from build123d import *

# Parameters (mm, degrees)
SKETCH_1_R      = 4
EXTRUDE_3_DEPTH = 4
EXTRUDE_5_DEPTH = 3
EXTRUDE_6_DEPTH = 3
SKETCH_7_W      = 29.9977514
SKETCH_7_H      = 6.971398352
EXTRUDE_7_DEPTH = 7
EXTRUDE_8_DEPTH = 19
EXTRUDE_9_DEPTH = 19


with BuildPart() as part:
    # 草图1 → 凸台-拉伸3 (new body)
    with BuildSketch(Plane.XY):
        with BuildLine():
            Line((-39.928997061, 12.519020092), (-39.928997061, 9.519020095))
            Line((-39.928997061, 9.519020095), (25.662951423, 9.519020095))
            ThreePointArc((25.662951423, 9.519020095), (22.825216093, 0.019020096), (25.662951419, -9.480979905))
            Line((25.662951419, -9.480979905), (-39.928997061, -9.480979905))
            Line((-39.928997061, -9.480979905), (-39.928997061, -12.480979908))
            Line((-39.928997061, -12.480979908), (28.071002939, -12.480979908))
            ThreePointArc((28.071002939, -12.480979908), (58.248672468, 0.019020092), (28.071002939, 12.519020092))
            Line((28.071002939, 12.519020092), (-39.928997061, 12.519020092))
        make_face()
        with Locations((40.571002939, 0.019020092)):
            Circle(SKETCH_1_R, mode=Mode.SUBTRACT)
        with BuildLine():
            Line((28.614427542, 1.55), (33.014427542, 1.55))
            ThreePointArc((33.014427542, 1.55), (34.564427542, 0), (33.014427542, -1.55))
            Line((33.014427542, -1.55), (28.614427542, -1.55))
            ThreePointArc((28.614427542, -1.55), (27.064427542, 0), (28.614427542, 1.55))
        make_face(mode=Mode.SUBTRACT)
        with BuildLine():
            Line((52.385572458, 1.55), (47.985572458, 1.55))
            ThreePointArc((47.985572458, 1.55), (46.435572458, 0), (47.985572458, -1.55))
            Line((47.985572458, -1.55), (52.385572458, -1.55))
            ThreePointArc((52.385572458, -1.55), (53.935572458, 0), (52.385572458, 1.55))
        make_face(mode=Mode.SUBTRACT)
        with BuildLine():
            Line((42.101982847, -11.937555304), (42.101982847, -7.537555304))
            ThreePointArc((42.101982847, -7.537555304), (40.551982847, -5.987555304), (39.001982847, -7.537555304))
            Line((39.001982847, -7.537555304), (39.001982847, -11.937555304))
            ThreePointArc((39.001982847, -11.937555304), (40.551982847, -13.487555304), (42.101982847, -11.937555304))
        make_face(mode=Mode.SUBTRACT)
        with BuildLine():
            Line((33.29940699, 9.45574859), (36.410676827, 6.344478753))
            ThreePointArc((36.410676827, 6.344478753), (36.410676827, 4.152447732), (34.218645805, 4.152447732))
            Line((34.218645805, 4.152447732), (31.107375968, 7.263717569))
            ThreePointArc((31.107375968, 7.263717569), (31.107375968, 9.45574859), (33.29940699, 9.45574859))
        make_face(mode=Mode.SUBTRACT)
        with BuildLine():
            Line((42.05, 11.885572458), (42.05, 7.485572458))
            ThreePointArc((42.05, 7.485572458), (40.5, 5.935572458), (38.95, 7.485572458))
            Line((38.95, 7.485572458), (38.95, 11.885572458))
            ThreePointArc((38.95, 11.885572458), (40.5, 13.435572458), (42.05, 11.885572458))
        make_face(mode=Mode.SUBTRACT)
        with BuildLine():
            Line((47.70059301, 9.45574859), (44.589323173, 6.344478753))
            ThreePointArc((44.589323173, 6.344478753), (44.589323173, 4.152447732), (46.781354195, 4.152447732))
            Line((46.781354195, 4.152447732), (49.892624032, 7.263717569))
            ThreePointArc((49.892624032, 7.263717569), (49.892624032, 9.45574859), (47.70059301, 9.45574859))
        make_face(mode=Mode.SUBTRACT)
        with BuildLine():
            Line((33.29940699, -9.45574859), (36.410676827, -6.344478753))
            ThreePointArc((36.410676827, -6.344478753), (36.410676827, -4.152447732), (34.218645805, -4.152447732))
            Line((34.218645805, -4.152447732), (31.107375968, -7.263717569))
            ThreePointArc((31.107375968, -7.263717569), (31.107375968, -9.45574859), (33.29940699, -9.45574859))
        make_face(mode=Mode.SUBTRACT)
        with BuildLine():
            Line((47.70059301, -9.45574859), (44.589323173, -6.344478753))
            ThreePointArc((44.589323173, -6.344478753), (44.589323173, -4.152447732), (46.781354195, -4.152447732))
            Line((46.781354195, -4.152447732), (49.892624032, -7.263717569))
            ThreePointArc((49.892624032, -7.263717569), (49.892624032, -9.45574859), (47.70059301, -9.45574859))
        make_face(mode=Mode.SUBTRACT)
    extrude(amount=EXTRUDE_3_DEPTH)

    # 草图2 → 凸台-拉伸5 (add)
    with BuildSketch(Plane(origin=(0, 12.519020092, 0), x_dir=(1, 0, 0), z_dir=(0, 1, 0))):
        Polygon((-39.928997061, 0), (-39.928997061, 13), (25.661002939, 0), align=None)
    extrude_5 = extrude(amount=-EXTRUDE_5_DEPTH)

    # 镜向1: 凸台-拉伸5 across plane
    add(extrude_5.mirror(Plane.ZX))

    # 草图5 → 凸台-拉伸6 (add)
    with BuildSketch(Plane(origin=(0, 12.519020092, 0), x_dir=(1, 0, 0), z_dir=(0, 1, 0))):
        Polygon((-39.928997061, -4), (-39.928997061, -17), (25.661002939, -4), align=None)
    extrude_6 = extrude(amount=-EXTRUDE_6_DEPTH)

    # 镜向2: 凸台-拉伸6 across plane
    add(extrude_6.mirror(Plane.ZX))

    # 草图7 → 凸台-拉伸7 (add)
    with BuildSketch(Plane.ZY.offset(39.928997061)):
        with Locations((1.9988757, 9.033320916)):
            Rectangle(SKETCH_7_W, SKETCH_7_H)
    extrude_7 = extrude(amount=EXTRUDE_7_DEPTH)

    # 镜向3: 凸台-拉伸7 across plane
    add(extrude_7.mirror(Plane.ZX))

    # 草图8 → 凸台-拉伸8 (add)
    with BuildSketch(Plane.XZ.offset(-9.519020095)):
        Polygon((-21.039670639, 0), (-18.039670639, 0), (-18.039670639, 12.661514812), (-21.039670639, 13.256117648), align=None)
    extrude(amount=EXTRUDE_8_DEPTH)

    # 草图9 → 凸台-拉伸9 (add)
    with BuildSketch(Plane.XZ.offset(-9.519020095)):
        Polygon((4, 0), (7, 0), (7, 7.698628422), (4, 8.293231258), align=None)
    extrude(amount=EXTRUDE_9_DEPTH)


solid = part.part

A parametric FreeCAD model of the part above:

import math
import FreeCAD as App
import Part
import Sketcher


def add_polygon(sketch, points):
    """Adds a closed chain of lines whose ends are joined by coincident constraints."""
    first, n = sketch.GeometryCount, len(points)
    for a, b in zip(points, points[1:] + points[:1]):
        sketch.addGeometry(Part.LineSegment(App.Vector(*a, 0), App.Vector(*b, 0)), False)
    for i in range(n):
        sketch.addConstraint(Sketcher.Constraint("Coincident", first + i, 2, first + (i + 1) % n, 1))

doc = App.newDocument("Part")
body = doc.addObject("PartDesign::Body", "Body")

# Sketch on XY plane
sketch1 = body.newObject("Sketcher::SketchObject", "Sketch")
sketch1.AttachmentSupport = (doc.getObject("XY_Plane"), [""])
sketch1.MapMode = "FlatFace"
sketch1.addGeometry([
    Part.LineSegment(App.Vector(-39.9, 12.5, 0), App.Vector(-39.9, 9.5, 0)),  # 0
    Part.LineSegment(App.Vector(-39.9, 9.5, 0), App.Vector(25.7, 9.5, 0)),  # 1
    Part.ArcOfCircle(Part.Circle(App.Vector(40.1, 0, 0), App.Vector(0, 0, 1), 17.3), math.radians(147), math.radians(213)),  # 2
    Part.LineSegment(App.Vector(25.7, -9.5, 0), App.Vector(-39.9, -9.5, 0)),  # 3
    Part.LineSegment(App.Vector(-39.9, -9.5, 0), App.Vector(-39.9, -12.5, 0)),  # 4
    Part.LineSegment(App.Vector(-39.9, -12.5, 0), App.Vector(28.1, -12.5, 0)),  # 5
    Part.ArcOfCircle(Part.Circle(App.Vector(40.6, 0, 0), App.Vector(0, 0, 1), 17.7), math.radians(-135), math.radians(135)),  # 6
    Part.LineSegment(App.Vector(28.1, 12.5, 0), App.Vector(-39.9, 12.5, 0)),  # 7
    Part.LineSegment(App.Vector(36.4, -6.3, 0), App.Vector(33.3, -9.5, 0)),  # 8
    Part.ArcOfCircle(Part.Circle(App.Vector(32.2, -8.4, 0), App.Vector(0, 0, 1), 1.6), math.radians(135), math.radians(315)),  # 9
    Part.LineSegment(App.Vector(31.1, -7.3, 0), App.Vector(34.2, -4.2, 0)),  # 10
    Part.ArcOfCircle(Part.Circle(App.Vector(35.3, -5.2, 0), App.Vector(0, 0, 1), 1.6), math.radians(-45), math.radians(135)),  # 11
    Part.LineSegment(App.Vector(42.1, -7.5, 0), App.Vector(42.1, -11.9, 0)),  # 12
    Part.ArcOfCircle(Part.Circle(App.Vector(40.6, -11.9, 0), App.Vector(0, 0, 1), 1.6), math.radians(180), math.radians(360)),  # 13
    Part.LineSegment(App.Vector(39, -11.9, 0), App.Vector(39, -7.5, 0)),  # 14
    Part.ArcOfCircle(Part.Circle(App.Vector(40.6, -7.5, 0), App.Vector(0, 0, 1), 1.6), math.radians(0), math.radians(180)),  # 15
    Part.ArcOfCircle(Part.Circle(App.Vector(48.8, -8.4, 0), App.Vector(0, 0, 1), 1.6), math.radians(-135), math.radians(45)),  # 16
    Part.LineSegment(App.Vector(47.7, -9.5, 0), App.Vector(44.6, -6.3, 0)),  # 17
    Part.ArcOfCircle(Part.Circle(App.Vector(45.7, -5.2, 0), App.Vector(0, 0, 1), 1.6), math.radians(45), math.radians(225)),  # 18
    Part.LineSegment(App.Vector(46.8, -4.2, 0), App.Vector(49.9, -7.3, 0)),  # 19
    Part.ArcOfCircle(Part.Circle(App.Vector(28.6, 0, 0), App.Vector(0, 0, 1), 1.6), math.radians(90), math.radians(270)),  # 20
    Part.LineSegment(App.Vector(28.6, 1.6, 0), App.Vector(33, 1.6, 0)),  # 21
    Part.ArcOfCircle(Part.Circle(App.Vector(33, 0, 0), App.Vector(0, 0, 1), 1.6), math.radians(-90), math.radians(90)),  # 22
    Part.LineSegment(App.Vector(33, -1.6, 0), App.Vector(28.6, -1.6, 0)),  # 23
    Part.ArcOfCircle(Part.Circle(App.Vector(32.2, 8.4, 0), App.Vector(0, 0, 1), 1.6), math.radians(45), math.radians(225)),  # 24
    Part.LineSegment(App.Vector(33.3, 9.5, 0), App.Vector(36.4, 6.3, 0)),  # 25
    Part.ArcOfCircle(Part.Circle(App.Vector(35.3, 5.2, 0), App.Vector(0, 0, 1), 1.6), math.radians(-135), math.radians(45)),  # 26
    Part.LineSegment(App.Vector(34.2, 4.2, 0), App.Vector(31.1, 7.3, 0)),  # 27
    Part.ArcOfCircle(Part.Circle(App.Vector(40.5, 11.9, 0), App.Vector(0, 0, 1), 1.6), math.radians(0), math.radians(180)),  # 28
    Part.LineSegment(App.Vector(42, 11.9, 0), App.Vector(42, 7.5, 0)),  # 29
    Part.ArcOfCircle(Part.Circle(App.Vector(40.5, 7.5, 0), App.Vector(0, 0, 1), 1.6), math.radians(180), math.radians(360)),  # 30
    Part.LineSegment(App.Vector(39, 7.5, 0), App.Vector(39, 11.9, 0)),  # 31
    Part.Circle(App.Vector(40.6, 0, 0), App.Vector(0, 0, 1), 4),  # 32
    Part.LineSegment(App.Vector(48, 1.6, 0), App.Vector(52.4, 1.6, 0)),  # 33
    Part.ArcOfCircle(Part.Circle(App.Vector(52.4, 0, 0), App.Vector(0, 0, 1), 1.6), math.radians(-90), math.radians(90)),  # 34
    Part.LineSegment(App.Vector(52.4, -1.6, 0), App.Vector(48, -1.6, 0)),  # 35
    Part.ArcOfCircle(Part.Circle(App.Vector(48, 0, 0), App.Vector(0, 0, 1), 1.6), math.radians(90), math.radians(270)),  # 36
    Part.LineSegment(App.Vector(44.6, 6.3, 0), App.Vector(47.7, 9.5, 0)),  # 37
    Part.ArcOfCircle(Part.Circle(App.Vector(48.8, 8.4, 0), App.Vector(0, 0, 1), 1.6), math.radians(-45), math.radians(135)),  # 38
    Part.LineSegment(App.Vector(49.9, 7.3, 0), App.Vector(46.8, 4.2, 0)),  # 39
    Part.ArcOfCircle(Part.Circle(App.Vector(45.7, 5.2, 0), App.Vector(0, 0, 1), 1.6), math.radians(135), math.radians(315)),  # 40
], False)
sketch1.addConstraint([
    Sketcher.Constraint("Coincident", 0, 2, 1, 1),
    Sketcher.Constraint("Coincident", 1, 2, 2, 1),
    Sketcher.Constraint("Coincident", 2, 2, 3, 1),
    Sketcher.Constraint("Coincident", 3, 2, 4, 1),
    Sketcher.Constraint("Coincident", 4, 2, 5, 1),
    Sketcher.Constraint("Coincident", 5, 2, 6, 1),
    Sketcher.Constraint("Coincident", 6, 2, 7, 1),
    Sketcher.Constraint("Coincident", 7, 2, 0, 1),
    Sketcher.Constraint("Tangent", 8, 2, 9, 2),
    Sketcher.Constraint("Tangent", 9, 1, 10, 1),
    Sketcher.Constraint("Tangent", 10, 2, 11, 2),
    Sketcher.Constraint("Tangent", 11, 1, 8, 1),
    Sketcher.Constraint("Tangent", 12, 2, 13, 2),
    Sketcher.Constraint("Tangent", 13, 1, 14, 1),
    Sketcher.Constraint("Tangent", 14, 2, 15, 2),
    Sketcher.Constraint("Tangent", 15, 1, 12, 1),
    Sketcher.Constraint("Tangent", 16, 1, 17, 1),
    Sketcher.Constraint("Tangent", 17, 2, 18, 2),
    Sketcher.Constraint("Tangent", 18, 1, 19, 1),
    Sketcher.Constraint("Tangent", 19, 2, 16, 2),
    Sketcher.Constraint("Tangent", 20, 1, 21, 1),
    Sketcher.Constraint("Tangent", 21, 2, 22, 2),
    Sketcher.Constraint("Tangent", 22, 1, 23, 1),
    Sketcher.Constraint("Tangent", 23, 2, 20, 2),
    Sketcher.Constraint("Tangent", 24, 1, 25, 1),
    Sketcher.Constraint("Tangent", 25, 2, 26, 2),
    Sketcher.Constraint("Tangent", 26, 1, 27, 1),
    Sketcher.Constraint("Tangent", 27, 2, 24, 2),
    Sketcher.Constraint("Tangent", 28, 1, 29, 1),
    Sketcher.Constraint("Tangent", 29, 2, 30, 2),
    Sketcher.Constraint("Tangent", 30, 1, 31, 1),
    Sketcher.Constraint("Tangent", 31, 2, 28, 2),
    Sketcher.Constraint("Tangent", 33, 2, 34, 2),
    Sketcher.Constraint("Tangent", 34, 1, 35, 1),
    Sketcher.Constraint("Tangent", 35, 2, 36, 2),
    Sketcher.Constraint("Tangent", 36, 1, 33, 1),
    Sketcher.Constraint("Tangent", 37, 2, 38, 2),
    Sketcher.Constraint("Tangent", 38, 1, 39, 1),
    Sketcher.Constraint("Tangent", 39, 2, 40, 2),
    Sketcher.Constraint("Tangent", 40, 1, 37, 1),
    Sketcher.Constraint("Vertical", 0),
    Sketcher.Constraint("Horizontal", 1),
    Sketcher.Constraint("Horizontal", 3),
    Sketcher.Constraint("Vertical", 4),
    Sketcher.Constraint("Horizontal", 5),
    Sketcher.Constraint("Horizontal", 7),
    Sketcher.Constraint("Vertical", 12),
    Sketcher.Constraint("Vertical", 14),
    Sketcher.Constraint("Horizontal", 21),
    Sketcher.Constraint("Horizontal", 23),
    Sketcher.Constraint("Vertical", 29),
    Sketcher.Constraint("Vertical", 31),
    Sketcher.Constraint("Horizontal", 33),
    Sketcher.Constraint("Horizontal", 35),
    Sketcher.Constraint("Coincident", 32, 3, 6, 3),
    Sketcher.Constraint("Equal", 9, 11),
    Sketcher.Constraint("Equal", 11, 13),
    Sketcher.Constraint("Equal", 15, 16),
    Sketcher.Constraint("Equal", 16, 18),
    Sketcher.Constraint("Equal", 18, 20),
    Sketcher.Constraint("Equal", 22, 24),
    Sketcher.Constraint("Equal", 24, 26),
    Sketcher.Constraint("Equal", 26, 28),
    Sketcher.Constraint("Equal", 30, 34),
    Sketcher.Constraint("Equal", 36, 38),
    Sketcher.Constraint("Equal", 38, 40),
    Sketcher.Constraint("Symmetric", 9, 3, 24, 3, -1),
    Sketcher.Constraint("Symmetric", 11, 3, 26, 3, -1),
    Sketcher.Constraint("Symmetric", 16, 3, 38, 3, -1),
    Sketcher.Constraint("Symmetric", 18, 3, 40, 3, -1),
    Sketcher.Constraint("PointOnObject", 20, 3, -1),
    Sketcher.Constraint("PointOnObject", 34, 3, -1),
    Sketcher.Constraint("Perpendicular", 10, 17),
    Sketcher.Constraint("Parallel", 19, 25),
    Sketcher.Constraint("Horizontal", 2, 3, 6, 3),
    Sketcher.Constraint("Horizontal", 9, 3, 16, 3),
    Sketcher.Constraint("Horizontal", 11, 3, 18, 3),
    Sketcher.Constraint("Vertical", 1, 2, 2, 2),
    Sketcher.Constraint("Vertical", 0, 2, 3, 2),
    Sketcher.Constraint("Vertical", 5, 2, 6, 2),
    Sketcher.Constraint("Equal", 23, 33),
    Sketcher.Constraint("Equal", 35, 12),
    Sketcher.Constraint("Equal", 14, 29),
    Sketcher.Constraint("Diameter", 32, 8.0),
    Sketcher.Constraint("DistanceX", 5, 1, 5, 2, 68.0),
    Sketcher.Constraint("DistanceY", 0, 2, 0, 1, 3.0),
    Sketcher.Constraint("Radius", 9, 1.55),
    Sketcher.Constraint("DistanceX", 21, 1, 21, 2, 4.4),
    Sketcher.Constraint("DistanceY", 3, 2, 0, 2, 19.0),
    Sketcher.Constraint("Distance", 8, 4.4),
    Sketcher.Constraint("DistanceX", -1, 1, 28, 3, 40.5),
    Sketcher.Constraint("Radius", 6, 17.67767),
    Sketcher.Constraint("Radius", 2, 17.320633),
    Sketcher.Constraint("DistanceX", 1, 1, 1, 2, 65.591948),
    Sketcher.Constraint("DistanceX", -1, 1, 2, 3, 40.145849),
    Sketcher.Constraint("DistanceY", -1, 1, 2, 3, 0.01902),
    Sketcher.Constraint("DistanceX", -1, 1, 9, 3, 32.203391),
    Sketcher.Constraint("DistanceX", -1, 1, 16, 3, 48.796609),
    Sketcher.Constraint("DistanceY", 8, 2, -1, 1, 9.455749),
    Sketcher.Constraint("DistanceX", 11, 3, 13, 3, 5.237322),
    Sketcher.Constraint("DistanceX", 20, 3, 2, 3, 11.531421),
    Sketcher.Constraint("DistanceY", 26, 3, 28, 3, 6.637109),
    Sketcher.Constraint("DistanceX", 6, 3, 34, 3, 11.81457),
    Sketcher.Constraint("DistanceY", 13, 3, -1, 1, 11.937555),
])
pad1 = body.newObject("PartDesign::Pad", "Pad")
pad1.Profile = sketch1
pad1.Length = 4

# Sketch on XZ plane
sketch2 = body.newObject("Sketcher::SketchObject", "Sketch001")
sketch2.AttachmentSupport = (doc.getObject("XZ_Plane"), [""])
sketch2.MapMode = "FlatFace"
sketch2.AttachmentOffset = App.Placement(App.Vector(0, 0, -12.51902), App.Rotation())
add_polygon(sketch2, [(-40, -13), (-40, 0), (26, 0)])  # lines 0-2
sketch2.addConstraint([
    Sketcher.Constraint("Vertical", 0),
    Sketcher.Constraint("Horizontal", 1),
    Sketcher.Constraint("PointOnObject", 0, 2, -1),
    Sketcher.Constraint("DistanceY", 0, 1, 0, 2, 13.0),
    Sketcher.Constraint("DistanceX", 1, 1, 1, 2, 65.59),
    Sketcher.Constraint("DistanceX", 0, 2, -1, 1, 39.928997),
])
pad2 = body.newObject("PartDesign::Pad", "Pad001")
pad2.Profile = sketch2
pad2.Length = 3
doc.recompute()

mirrored = body.newObject("PartDesign::Mirrored", "Mirrored")
mirrored.Originals = [pad2]
mirrored.MirrorPlane = (doc.getObject("XZ_Plane"), [""])
body.Tip = mirrored

# Sketch on XZ plane
sketch3 = body.newObject("Sketcher::SketchObject", "Sketch002")
sketch3.AttachmentSupport = (doc.getObject("XZ_Plane"), [""])
sketch3.MapMode = "FlatFace"
sketch3.AttachmentOffset = App.Placement(App.Vector(0, 0, -12.51902), App.Rotation())
add_polygon(sketch3, [(-40, 4), (-40, 17), (26, 4)])  # lines 0-2
sketch3.addConstraint([
    Sketcher.Constraint("Vertical", 0),
    Sketcher.Constraint("Horizontal", 2),
    Sketcher.Constraint("DistanceY", 0, 1, 0, 2, 13.0),
    Sketcher.Constraint("DistanceY", -1, 1, 0, 2, 17.0),
    Sketcher.Constraint("DistanceX", 2, 2, 2, 1, 65.59),
    Sketcher.Constraint("DistanceX", 0, 2, -1, 1, 39.928997),
])
pad3 = body.newObject("PartDesign::Pad", "Pad002")
pad3.Profile = sketch3
pad3.Length = 3
doc.recompute()

mirrored2 = body.newObject("PartDesign::Mirrored", "Mirrored001")
mirrored2.Originals = [pad3]
mirrored2.MirrorPlane = (doc.getObject("XZ_Plane"), [""])
body.Tip = mirrored2

# Sketch on YZ plane
sketch4 = body.newObject("Sketcher::SketchObject", "Sketch003")
sketch4.AttachmentSupport = (doc.getObject("YZ_Plane"), [""])
sketch4.MapMode = "FlatFace"
sketch4.AttachmentOffset = App.Placement(App.Vector(0, 0, -39.928997), App.Rotation())
add_polygon(sketch4, [(13, -13), (6, -13), (6, 17), (13, 17)])  # lines 0-3
sketch4.addConstraint([
    Sketcher.Constraint("Horizontal", 0),
    Sketcher.Constraint("Vertical", 1),
    Sketcher.Constraint("Horizontal", 2),
    Sketcher.Constraint("Vertical", 3),
    Sketcher.Constraint("DistanceY", 0, 2, -1, 1, 13.0),
    Sketcher.Constraint("DistanceX", 0, 2, 0, 1, 6.971398),
    Sketcher.Constraint("DistanceY", 1, 1, 1, 2, 29.997751),
    Sketcher.Constraint("DistanceX", -1, 1, 0, 2, 5.547622),
])
pad4 = body.newObject("PartDesign::Pad", "Pad003")
pad4.Profile = sketch4
pad4.Length = 7
pad4.Reversed = True
doc.recompute()

mirrored3 = body.newObject("PartDesign::Mirrored", "Mirrored002")
mirrored3.Originals = [pad4]
mirrored3.MirrorPlane = (doc.getObject("XZ_Plane"), [""])
body.Tip = mirrored3

# Sketch on XZ plane
sketch5 = body.newObject("Sketcher::SketchObject", "Sketch004")
sketch5.AttachmentSupport = (doc.getObject("XZ_Plane"), [""])
sketch5.MapMode = "FlatFace"
sketch5.AttachmentOffset = App.Placement(App.Vector(0, 0, -9.51902), App.Rotation())
add_polygon(sketch5, [(-21, 0), (-18, 0), (-18, 12.7), (-21, 13.3)])  # lines 0-3
sketch5.addConstraint([
    Sketcher.Constraint("Horizontal", 0),
    Sketcher.Constraint("Vertical", 1),
    Sketcher.Constraint("Vertical", 3),
    Sketcher.Constraint("PointOnObject", 0, 2, -1),
    Sketcher.Constraint("DistanceX", 0, 1, 0, 2, 3.0),
    Sketcher.Constraint("DistanceY", 1, 1, 1, 2, 12.661515),
    Sketcher.Constraint("DistanceY", 3, 2, 3, 1, 13.256118),
    Sketcher.Constraint("DistanceX", 0, 2, -1, 1, 18.039671),
])
pad5 = body.newObject("PartDesign::Pad", "Pad004")
pad5.Profile = sketch5
pad5.Length = 19

# Sketch on XZ plane
sketch6 = body.newObject("Sketcher::SketchObject", "Sketch005")
sketch6.AttachmentSupport = (doc.getObject("XZ_Plane"), [""])
sketch6.MapMode = "FlatFace"
sketch6.AttachmentOffset = App.Placement(App.Vector(0, 0, -9.51902), App.Rotation())
add_polygon(sketch6, [(4, 0), (7, 0), (7, 7.7), (4, 8.3)])  # lines 0-3
sketch6.addConstraint([
    Sketcher.Constraint("Horizontal", 0),
    Sketcher.Constraint("Vertical", 1),
    Sketcher.Constraint("Vertical", 3),
    Sketcher.Constraint("PointOnObject", 0, 2, -1),
    Sketcher.Constraint("DistanceX", 0, 1, 0, 2, 3.0),
    Sketcher.Constraint("DistanceX", -1, 1, 0, 2, 7.0),
    Sketcher.Constraint("DistanceY", 1, 1, 1, 2, 7.698628),
    Sketcher.Constraint("DistanceY", 3, 2, 3, 1, 8.293231),
])
pad6 = body.newObject("PartDesign::Pad", "Pad005")
pad6.Profile = sketch6
pad6.Length = 19

doc.recompute()
